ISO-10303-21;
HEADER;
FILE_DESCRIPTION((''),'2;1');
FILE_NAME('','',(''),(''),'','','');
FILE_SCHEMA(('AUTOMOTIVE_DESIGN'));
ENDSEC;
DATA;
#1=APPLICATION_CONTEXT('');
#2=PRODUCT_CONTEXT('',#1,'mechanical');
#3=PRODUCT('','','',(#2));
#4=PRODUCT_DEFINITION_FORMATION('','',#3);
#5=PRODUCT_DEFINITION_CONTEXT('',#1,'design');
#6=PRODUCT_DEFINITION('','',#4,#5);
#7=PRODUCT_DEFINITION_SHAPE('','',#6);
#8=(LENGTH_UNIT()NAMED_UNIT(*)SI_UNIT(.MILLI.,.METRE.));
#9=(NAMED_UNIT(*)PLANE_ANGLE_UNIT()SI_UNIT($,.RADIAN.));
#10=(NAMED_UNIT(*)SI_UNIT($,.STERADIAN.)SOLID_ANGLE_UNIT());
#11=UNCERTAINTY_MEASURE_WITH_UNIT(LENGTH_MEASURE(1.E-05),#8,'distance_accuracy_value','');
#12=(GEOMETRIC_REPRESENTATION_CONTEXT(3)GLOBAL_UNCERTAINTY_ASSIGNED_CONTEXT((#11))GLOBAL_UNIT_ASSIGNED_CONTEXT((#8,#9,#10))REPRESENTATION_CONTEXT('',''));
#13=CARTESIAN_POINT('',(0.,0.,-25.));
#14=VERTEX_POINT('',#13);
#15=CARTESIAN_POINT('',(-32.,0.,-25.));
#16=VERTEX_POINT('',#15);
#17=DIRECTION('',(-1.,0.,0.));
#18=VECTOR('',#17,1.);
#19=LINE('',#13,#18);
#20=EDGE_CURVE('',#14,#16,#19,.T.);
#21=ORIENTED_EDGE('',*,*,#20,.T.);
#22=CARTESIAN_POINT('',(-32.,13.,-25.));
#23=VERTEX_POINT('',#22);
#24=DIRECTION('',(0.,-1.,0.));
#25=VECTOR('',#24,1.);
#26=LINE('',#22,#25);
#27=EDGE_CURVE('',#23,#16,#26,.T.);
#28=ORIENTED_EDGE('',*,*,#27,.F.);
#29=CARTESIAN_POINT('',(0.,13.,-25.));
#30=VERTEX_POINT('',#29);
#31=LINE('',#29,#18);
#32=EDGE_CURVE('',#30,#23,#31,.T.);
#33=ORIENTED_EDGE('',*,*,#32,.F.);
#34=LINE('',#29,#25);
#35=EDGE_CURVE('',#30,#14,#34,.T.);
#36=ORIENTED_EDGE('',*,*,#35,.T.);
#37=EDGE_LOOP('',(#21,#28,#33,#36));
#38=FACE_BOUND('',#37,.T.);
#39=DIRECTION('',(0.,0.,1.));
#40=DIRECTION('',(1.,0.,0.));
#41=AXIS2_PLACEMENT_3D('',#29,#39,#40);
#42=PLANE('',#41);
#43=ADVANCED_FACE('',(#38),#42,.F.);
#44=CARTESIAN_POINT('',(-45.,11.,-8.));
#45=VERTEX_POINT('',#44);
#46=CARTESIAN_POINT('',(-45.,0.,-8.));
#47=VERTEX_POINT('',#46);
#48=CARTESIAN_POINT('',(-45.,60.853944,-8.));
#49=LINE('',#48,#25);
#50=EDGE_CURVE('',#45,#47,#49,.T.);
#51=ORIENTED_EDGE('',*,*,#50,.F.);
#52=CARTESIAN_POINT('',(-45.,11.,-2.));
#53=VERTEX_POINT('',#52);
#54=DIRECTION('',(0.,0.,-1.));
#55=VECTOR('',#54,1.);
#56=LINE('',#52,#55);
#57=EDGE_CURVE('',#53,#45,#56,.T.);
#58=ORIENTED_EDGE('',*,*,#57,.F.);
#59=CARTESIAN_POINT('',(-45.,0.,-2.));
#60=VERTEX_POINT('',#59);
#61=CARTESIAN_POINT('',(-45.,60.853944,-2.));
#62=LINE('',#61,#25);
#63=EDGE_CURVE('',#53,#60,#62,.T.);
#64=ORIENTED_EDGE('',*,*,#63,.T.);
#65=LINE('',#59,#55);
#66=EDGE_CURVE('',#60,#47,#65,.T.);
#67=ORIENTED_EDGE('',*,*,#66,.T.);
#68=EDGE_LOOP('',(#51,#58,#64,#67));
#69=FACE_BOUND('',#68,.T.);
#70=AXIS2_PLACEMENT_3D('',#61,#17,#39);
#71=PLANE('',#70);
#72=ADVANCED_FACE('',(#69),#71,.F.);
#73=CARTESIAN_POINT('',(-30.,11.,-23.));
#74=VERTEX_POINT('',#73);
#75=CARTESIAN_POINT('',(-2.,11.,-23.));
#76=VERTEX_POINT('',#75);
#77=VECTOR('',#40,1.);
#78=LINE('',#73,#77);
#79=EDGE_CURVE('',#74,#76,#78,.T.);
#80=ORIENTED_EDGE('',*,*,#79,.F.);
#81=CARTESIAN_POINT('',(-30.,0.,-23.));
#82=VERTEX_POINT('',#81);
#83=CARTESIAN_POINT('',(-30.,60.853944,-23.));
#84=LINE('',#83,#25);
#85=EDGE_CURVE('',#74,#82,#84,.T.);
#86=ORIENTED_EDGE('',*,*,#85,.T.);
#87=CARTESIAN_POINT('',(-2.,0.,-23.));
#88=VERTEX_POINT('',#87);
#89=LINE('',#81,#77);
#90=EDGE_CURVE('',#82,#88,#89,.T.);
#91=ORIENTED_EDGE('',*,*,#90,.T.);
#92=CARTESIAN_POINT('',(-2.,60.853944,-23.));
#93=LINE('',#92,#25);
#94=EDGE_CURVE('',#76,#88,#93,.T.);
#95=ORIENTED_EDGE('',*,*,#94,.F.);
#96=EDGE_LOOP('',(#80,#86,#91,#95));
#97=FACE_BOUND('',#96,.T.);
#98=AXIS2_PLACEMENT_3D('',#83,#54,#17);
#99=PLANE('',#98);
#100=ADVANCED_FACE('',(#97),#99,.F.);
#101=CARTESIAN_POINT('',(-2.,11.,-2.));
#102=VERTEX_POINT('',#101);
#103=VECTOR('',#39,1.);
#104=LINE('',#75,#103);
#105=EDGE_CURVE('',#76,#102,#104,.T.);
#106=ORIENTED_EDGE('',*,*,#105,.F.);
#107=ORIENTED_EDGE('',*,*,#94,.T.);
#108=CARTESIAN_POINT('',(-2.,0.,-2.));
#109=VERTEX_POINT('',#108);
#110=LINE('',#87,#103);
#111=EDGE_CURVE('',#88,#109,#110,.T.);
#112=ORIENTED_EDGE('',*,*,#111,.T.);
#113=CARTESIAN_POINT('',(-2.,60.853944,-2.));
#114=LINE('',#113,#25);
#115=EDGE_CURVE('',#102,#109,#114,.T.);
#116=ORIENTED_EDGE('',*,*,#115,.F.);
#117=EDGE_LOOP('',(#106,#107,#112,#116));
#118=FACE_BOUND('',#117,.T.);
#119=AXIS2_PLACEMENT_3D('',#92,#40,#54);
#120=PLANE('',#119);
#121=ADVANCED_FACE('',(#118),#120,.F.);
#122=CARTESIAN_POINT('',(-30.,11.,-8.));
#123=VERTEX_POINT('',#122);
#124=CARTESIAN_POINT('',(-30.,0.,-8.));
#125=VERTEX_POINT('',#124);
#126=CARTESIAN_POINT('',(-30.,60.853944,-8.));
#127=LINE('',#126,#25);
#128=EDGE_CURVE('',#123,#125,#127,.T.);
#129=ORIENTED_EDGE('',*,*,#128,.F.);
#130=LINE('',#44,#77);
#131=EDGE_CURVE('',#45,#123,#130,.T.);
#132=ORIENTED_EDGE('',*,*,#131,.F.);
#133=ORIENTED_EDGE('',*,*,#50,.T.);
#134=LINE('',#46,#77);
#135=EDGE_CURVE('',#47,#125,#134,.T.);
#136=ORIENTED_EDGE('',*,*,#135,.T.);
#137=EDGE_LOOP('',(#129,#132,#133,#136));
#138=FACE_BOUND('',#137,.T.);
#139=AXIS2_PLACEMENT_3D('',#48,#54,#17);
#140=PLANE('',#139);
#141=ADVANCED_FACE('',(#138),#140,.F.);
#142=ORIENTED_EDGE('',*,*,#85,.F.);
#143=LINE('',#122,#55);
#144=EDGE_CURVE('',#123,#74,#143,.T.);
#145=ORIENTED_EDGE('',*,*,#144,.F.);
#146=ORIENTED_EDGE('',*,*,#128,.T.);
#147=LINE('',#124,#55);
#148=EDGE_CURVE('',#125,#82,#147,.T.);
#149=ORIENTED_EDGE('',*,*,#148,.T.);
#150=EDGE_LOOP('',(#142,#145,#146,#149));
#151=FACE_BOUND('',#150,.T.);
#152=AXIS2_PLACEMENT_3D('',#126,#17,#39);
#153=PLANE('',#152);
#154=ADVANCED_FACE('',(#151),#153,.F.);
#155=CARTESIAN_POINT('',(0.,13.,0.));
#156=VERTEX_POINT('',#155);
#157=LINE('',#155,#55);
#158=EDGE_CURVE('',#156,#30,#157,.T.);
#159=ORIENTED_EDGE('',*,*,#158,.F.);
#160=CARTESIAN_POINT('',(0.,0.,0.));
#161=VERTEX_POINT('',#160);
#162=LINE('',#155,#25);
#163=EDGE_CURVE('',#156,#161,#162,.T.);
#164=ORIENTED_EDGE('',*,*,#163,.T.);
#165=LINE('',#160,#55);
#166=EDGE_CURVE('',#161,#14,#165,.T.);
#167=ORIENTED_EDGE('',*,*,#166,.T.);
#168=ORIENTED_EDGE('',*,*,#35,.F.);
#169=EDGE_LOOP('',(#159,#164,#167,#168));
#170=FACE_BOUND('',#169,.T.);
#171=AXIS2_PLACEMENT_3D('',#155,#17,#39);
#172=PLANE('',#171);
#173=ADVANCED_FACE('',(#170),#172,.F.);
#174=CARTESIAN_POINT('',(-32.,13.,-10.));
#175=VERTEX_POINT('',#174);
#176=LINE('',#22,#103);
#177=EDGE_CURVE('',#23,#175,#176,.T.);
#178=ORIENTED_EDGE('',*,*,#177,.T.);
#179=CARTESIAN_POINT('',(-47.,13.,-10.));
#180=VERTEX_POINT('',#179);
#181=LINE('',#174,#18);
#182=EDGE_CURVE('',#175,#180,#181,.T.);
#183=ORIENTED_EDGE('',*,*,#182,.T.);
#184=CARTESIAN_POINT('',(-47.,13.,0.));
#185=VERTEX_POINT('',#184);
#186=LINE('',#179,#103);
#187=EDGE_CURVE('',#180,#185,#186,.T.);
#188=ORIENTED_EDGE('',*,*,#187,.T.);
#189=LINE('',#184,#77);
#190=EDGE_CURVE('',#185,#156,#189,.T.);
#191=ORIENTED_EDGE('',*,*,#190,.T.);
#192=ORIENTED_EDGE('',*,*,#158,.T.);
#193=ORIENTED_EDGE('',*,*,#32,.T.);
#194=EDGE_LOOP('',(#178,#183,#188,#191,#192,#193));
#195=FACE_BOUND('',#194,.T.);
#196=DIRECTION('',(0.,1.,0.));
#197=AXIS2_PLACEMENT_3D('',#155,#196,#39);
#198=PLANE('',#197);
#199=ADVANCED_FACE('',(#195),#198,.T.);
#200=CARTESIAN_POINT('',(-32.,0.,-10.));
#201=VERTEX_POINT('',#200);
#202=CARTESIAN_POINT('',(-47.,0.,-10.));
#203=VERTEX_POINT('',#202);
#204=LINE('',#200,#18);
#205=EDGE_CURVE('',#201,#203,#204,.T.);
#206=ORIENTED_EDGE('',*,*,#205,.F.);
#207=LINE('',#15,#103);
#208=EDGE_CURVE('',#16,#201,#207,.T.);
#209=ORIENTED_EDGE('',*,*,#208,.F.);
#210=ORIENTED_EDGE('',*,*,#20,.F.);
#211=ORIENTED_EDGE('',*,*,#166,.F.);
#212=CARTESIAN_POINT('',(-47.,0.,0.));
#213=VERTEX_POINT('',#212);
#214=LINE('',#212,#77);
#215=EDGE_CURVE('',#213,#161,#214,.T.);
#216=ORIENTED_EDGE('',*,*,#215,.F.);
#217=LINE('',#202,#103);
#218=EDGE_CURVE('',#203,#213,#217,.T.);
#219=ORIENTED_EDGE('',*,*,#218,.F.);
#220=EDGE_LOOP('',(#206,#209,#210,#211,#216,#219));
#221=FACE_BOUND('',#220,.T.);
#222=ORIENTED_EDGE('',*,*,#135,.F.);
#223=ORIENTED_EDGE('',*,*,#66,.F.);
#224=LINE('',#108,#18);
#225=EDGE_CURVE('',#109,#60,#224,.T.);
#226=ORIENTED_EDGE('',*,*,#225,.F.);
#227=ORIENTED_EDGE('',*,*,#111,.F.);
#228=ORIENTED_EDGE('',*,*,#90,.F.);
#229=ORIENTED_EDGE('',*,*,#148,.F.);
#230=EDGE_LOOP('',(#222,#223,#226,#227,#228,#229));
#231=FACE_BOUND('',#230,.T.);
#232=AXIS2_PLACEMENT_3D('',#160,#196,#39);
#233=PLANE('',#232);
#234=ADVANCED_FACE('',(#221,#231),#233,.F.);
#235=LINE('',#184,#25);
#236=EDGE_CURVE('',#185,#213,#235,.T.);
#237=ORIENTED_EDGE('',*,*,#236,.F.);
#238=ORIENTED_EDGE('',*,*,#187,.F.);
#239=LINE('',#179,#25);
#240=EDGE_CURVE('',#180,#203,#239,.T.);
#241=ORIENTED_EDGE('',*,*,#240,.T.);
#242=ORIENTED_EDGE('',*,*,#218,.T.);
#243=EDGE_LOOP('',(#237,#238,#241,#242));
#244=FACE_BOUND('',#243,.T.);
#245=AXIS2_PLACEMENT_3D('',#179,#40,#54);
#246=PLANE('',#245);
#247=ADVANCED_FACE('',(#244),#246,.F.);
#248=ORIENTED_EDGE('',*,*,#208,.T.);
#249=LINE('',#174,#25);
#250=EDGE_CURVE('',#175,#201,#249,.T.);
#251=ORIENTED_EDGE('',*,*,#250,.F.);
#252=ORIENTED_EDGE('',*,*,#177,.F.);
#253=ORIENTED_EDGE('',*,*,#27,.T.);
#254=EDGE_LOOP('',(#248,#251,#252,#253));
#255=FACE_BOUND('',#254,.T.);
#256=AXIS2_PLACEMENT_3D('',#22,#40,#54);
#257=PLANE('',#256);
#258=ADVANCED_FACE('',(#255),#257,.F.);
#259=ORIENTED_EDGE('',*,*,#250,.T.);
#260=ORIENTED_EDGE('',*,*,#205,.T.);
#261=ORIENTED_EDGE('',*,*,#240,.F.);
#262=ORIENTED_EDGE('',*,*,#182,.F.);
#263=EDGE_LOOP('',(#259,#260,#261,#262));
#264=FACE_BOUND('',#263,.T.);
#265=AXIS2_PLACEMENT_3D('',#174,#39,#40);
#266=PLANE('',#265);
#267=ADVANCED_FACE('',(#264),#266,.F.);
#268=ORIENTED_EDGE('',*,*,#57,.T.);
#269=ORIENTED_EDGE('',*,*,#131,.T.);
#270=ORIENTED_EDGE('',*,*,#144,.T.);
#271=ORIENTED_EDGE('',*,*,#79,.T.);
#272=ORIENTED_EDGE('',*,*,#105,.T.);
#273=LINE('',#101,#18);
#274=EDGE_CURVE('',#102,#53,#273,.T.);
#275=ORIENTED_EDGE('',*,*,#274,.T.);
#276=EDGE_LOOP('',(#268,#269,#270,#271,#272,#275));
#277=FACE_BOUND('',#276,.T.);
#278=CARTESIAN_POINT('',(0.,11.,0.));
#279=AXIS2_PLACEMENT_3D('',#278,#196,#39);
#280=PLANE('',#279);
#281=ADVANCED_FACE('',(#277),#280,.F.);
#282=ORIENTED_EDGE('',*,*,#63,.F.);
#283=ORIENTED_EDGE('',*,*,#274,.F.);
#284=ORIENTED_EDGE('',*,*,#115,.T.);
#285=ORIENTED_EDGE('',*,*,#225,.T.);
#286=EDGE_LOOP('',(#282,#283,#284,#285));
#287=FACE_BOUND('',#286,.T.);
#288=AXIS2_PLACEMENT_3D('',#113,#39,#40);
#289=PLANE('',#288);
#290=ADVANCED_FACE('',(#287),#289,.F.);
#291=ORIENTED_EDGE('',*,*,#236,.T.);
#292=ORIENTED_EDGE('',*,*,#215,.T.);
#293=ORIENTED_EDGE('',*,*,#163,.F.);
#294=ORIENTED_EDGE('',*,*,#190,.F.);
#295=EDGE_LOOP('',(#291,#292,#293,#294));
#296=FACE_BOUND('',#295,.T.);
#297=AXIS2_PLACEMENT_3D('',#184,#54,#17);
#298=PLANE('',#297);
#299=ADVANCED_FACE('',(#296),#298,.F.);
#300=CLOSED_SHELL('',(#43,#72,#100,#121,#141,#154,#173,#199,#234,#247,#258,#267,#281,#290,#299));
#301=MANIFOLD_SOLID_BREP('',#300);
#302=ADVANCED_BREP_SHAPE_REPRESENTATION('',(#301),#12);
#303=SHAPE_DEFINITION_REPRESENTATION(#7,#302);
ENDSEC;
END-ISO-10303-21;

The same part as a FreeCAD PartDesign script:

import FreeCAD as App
import Part
import Sketcher
Q = App.Units.Quantity


def add_polygon(sketch, points):
    """Adds a closed chain of lines whose ends are joined by coincident constraints."""
    first, n = sketch.GeometryCount, len(points)
    for a, b in zip(points, points[1:] + points[:1]):
        sketch.addGeometry(Part.LineSegment(App.Vector(*a, 0), App.Vector(*b, 0)), False)
    for i in range(n):
        sketch.addConstraint(Sketcher.Constraint("Coincident", first + i, 2, first + (i + 1) % n, 1))

doc = App.newDocument("Part")
body = doc.addObject("PartDesign::Body", "Body")

sketch1 = body.newObject("Sketcher::SketchObject", "Sketch")
sketch1.AttachmentSupport = (doc.getObject("XZ_Plane"), [""])
sketch1.MapMode = "FlatFace"
add_polygon(sketch1, [(0, 0), (0, -25), (-32, -25), (-32, -10), (-47, -10), (-47, 0)])
sketch1.addConstraint([
    Sketcher.Constraint("Vertical", 0),
    Sketcher.Constraint("Horizontal", 1),
    Sketcher.Constraint("Vertical", 2),
    Sketcher.Constraint("Horizontal", 3),
    Sketcher.Constraint("Vertical", 4),
    Sketcher.Constraint("Horizontal", 5),
    Sketcher.Constraint("Coincident", 5, 2, -1, 1),
    Sketcher.Constraint("Equal", 3, 2),
    Sketcher.Constraint("DistanceX", 1, 2, 1, 1, Q("32 mm")),
    Sketcher.Constraint("DistanceX", 3, 2, 3, 1, Q("15 mm")),
    Sketcher.Constraint("DistanceY", 0, 2, 0, 1, Q("25 mm")),
])
pad1 = body.newObject("PartDesign::Pad", "Pad")
pad1.Profile = sketch1
pad1.Length = 13
pad1.Reversed = True

sketch2 = body.newObject("Sketcher::SketchObject", "Sketch001")
sketch2.AttachmentSupport = (doc.getObject("XZ_Plane"), [""])
sketch2.MapMode = "FlatFace"
add_polygon(sketch2, [(-2, -2), (-45, -2), (-45, -8), (-30, -8), (-30, -23), (-2, -23)])
sketch2.addConstraint([
    Sketcher.Constraint("Horizontal", 0),
    Sketcher.Constraint("Vertical", 1),
    Sketcher.Constraint("Horizontal", 2),
    Sketcher.Constraint("Vertical", 3),
    Sketcher.Constraint("Horizontal", 4),
    Sketcher.Constraint("Vertical", 5),
    Sketcher.Constraint("Equal", 2, 3),
    Sketcher.Constraint("DistanceX", 0, 2, 0, 1, Q("43 mm")),
    Sketcher.Constraint("DistanceX", 2, 1, 2, 2, Q("15 mm")),
    Sketcher.Constraint("DistanceY", 1, 2, 1, 1, Q("6 mm")),
    Sketcher.Constraint("DistanceX", 0, 2, -1, 1, Q("45 mm")),
    Sketcher.Constraint("DistanceY", 0, 2, -1, 1, Q("2 mm")),
])
pocket1 = body.newObject("PartDesign::Pocket", "Pocket")
pocket1.Profile = sketch2
pocket1.Length = 11

doc.recompute()
